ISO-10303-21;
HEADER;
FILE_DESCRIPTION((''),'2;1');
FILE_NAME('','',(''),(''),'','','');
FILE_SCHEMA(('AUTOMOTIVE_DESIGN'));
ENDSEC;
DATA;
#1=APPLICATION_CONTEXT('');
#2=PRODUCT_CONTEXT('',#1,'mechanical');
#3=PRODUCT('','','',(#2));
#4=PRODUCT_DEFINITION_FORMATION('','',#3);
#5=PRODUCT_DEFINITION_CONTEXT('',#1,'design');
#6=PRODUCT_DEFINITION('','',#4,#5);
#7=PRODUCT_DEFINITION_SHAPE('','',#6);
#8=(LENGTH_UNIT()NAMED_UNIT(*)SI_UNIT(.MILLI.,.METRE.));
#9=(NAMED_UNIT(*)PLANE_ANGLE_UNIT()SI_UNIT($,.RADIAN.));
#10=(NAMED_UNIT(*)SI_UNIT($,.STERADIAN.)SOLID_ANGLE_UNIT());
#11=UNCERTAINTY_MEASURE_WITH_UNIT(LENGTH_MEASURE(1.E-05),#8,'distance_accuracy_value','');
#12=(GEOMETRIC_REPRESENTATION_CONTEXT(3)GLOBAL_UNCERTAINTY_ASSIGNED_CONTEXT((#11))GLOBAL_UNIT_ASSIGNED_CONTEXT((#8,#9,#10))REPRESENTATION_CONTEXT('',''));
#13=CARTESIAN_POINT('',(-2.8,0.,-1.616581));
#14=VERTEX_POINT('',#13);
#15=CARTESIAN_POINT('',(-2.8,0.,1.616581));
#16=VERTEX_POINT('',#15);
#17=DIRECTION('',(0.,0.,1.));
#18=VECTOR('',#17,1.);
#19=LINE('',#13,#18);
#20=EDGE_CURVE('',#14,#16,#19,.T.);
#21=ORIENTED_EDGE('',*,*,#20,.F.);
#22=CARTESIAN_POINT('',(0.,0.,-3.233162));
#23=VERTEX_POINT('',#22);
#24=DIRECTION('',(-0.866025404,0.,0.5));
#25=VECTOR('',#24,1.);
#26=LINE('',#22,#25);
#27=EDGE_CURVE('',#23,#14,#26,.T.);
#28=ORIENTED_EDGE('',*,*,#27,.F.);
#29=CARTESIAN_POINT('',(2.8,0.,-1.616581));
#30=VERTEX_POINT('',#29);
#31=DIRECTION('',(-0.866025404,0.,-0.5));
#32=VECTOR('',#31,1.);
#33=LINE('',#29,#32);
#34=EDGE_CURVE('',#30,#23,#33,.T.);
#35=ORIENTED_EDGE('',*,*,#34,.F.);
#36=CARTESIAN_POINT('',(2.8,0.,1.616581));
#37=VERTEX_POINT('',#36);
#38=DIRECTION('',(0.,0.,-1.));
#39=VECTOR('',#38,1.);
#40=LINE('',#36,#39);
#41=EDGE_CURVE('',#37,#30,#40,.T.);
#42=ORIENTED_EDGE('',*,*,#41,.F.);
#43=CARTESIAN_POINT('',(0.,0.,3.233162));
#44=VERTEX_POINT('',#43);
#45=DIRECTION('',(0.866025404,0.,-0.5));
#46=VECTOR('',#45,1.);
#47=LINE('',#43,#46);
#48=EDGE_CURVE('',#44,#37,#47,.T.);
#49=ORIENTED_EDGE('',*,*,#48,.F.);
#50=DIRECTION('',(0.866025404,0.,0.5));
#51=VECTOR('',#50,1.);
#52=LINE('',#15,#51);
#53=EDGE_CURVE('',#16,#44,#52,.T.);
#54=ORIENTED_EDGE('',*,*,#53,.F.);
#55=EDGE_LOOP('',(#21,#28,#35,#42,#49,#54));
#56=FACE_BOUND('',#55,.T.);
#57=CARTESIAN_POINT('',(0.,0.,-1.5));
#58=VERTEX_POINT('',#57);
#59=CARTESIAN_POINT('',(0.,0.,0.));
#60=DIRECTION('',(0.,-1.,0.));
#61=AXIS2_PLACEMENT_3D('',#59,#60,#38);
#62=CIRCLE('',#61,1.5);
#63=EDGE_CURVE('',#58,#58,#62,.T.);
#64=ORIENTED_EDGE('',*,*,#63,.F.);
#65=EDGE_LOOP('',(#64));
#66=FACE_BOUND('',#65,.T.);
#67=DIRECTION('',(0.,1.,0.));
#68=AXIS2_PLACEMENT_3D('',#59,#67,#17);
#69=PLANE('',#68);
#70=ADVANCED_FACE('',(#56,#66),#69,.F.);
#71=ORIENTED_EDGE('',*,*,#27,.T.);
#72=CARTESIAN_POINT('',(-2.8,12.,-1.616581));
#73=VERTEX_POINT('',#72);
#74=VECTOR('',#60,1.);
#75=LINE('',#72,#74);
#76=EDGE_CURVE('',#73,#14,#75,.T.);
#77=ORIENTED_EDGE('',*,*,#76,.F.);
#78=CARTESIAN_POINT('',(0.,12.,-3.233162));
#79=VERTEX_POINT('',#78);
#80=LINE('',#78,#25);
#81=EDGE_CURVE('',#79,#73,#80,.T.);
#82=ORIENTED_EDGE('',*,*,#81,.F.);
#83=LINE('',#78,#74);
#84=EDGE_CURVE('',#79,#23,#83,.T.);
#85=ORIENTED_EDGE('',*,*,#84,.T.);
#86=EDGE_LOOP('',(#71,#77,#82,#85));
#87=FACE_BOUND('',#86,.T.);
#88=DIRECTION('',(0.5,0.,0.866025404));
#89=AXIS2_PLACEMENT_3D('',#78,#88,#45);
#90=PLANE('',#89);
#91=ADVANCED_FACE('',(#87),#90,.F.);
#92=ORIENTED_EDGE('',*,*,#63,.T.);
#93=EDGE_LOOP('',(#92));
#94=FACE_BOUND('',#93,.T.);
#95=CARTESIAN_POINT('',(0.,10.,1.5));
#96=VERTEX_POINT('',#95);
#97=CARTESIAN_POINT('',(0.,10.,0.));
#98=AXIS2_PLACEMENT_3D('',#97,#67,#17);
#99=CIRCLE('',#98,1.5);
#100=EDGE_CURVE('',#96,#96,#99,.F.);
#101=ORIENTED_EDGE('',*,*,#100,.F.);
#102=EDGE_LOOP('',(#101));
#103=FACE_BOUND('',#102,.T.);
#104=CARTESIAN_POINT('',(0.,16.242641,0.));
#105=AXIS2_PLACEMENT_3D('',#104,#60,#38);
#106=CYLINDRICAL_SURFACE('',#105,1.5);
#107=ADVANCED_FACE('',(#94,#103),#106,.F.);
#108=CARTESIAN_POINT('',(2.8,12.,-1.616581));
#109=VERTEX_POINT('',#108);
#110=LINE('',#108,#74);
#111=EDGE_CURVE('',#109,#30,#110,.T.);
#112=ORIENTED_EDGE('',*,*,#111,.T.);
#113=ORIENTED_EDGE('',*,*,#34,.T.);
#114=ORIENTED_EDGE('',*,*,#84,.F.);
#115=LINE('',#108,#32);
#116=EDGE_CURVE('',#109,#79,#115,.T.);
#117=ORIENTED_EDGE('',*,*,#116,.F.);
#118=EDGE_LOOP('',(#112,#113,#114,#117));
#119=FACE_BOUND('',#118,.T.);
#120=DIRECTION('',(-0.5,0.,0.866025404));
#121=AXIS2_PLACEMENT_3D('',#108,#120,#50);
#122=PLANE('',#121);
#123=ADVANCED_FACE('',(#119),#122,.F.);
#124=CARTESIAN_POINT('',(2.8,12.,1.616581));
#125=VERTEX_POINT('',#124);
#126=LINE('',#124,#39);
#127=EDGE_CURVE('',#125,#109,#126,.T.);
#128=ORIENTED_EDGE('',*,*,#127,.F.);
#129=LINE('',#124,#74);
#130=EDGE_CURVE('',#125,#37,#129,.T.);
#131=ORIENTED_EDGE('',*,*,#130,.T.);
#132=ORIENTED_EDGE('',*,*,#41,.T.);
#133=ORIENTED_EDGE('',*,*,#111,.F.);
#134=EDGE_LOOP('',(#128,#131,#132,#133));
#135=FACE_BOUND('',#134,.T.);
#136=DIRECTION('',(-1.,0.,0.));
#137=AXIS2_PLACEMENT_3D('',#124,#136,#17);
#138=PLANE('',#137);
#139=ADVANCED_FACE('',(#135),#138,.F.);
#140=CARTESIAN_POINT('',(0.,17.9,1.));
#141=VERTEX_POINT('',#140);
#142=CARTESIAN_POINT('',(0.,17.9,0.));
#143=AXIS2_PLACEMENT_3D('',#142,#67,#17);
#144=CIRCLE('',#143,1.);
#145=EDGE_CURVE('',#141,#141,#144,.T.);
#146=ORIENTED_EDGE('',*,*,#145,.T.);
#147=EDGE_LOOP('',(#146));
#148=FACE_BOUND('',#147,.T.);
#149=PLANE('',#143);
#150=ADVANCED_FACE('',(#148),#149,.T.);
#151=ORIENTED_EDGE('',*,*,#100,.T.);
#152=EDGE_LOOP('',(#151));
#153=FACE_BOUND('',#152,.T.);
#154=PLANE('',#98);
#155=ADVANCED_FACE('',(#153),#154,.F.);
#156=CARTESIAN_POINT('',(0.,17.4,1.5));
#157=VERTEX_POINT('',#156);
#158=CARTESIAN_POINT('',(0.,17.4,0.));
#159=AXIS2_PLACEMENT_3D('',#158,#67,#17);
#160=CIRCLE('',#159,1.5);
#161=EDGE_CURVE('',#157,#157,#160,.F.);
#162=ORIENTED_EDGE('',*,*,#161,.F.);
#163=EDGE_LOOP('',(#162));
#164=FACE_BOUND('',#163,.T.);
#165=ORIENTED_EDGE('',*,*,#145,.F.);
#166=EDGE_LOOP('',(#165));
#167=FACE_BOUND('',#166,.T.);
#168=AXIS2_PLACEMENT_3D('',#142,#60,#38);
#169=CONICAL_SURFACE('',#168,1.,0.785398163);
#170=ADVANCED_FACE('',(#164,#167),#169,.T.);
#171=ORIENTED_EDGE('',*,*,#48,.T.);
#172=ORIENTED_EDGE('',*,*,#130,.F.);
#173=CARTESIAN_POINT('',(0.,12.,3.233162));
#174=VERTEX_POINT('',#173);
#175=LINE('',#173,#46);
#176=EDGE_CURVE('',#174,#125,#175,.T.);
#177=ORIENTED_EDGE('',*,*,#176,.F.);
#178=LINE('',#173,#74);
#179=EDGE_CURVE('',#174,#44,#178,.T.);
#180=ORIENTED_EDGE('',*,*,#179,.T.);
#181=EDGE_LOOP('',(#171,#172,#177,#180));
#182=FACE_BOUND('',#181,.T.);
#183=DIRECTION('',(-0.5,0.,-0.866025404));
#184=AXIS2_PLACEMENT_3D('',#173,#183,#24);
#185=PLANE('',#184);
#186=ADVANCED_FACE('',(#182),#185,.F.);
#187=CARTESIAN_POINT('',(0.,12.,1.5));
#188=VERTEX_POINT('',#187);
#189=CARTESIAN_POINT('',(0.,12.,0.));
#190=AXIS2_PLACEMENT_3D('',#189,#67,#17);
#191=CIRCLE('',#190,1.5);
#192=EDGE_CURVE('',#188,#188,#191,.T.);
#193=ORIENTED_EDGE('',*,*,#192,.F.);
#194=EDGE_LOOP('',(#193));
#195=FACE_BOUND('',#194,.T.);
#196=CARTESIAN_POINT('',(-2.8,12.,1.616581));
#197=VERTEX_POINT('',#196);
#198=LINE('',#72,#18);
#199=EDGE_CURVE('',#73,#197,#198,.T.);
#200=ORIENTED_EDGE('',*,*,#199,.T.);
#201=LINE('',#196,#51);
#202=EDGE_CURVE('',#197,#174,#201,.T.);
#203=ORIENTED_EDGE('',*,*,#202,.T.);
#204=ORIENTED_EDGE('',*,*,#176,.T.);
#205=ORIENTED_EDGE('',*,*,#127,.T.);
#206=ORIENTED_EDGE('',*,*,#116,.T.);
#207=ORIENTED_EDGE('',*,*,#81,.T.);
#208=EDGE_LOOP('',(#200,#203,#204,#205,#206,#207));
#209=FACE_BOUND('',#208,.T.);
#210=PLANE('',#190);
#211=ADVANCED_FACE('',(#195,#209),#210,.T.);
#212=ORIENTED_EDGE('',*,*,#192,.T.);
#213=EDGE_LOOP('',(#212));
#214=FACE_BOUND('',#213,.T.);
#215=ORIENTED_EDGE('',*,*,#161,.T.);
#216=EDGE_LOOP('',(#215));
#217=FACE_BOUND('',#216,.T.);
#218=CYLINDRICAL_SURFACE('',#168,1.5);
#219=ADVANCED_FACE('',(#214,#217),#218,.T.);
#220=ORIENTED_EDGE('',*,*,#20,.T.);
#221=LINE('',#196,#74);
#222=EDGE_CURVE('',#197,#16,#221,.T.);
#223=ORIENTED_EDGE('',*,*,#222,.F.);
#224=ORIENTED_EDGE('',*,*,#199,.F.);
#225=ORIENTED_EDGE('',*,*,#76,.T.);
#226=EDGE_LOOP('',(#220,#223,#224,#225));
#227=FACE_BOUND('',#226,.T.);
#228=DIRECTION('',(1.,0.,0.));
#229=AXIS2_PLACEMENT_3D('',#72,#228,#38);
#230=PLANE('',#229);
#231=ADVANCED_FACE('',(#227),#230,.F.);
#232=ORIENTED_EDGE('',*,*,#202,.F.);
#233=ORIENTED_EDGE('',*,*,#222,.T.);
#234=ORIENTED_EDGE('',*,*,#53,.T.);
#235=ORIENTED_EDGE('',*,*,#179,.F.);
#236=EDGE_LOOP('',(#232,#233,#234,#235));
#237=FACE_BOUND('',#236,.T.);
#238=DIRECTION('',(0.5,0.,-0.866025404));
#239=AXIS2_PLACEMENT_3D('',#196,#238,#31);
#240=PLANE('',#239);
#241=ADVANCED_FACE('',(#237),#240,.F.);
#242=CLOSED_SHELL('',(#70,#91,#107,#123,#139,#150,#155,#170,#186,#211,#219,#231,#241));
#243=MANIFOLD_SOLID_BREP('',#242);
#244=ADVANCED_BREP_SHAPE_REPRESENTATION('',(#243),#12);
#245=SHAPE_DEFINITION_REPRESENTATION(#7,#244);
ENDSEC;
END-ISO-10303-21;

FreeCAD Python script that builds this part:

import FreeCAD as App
import Part
import Sketcher

V = App.Vector
Q = App.Units.Quantity


def edges_at(feature, points):
    """Names of the edges that pass closest to the given points."""
    edges = feature.Shape.Edges
    near = lambda p: min(range(len(edges)), key=lambda i: edges[i].distToShape(Part.Vertex(*p))[0])
    return sorted({f"Edge{near(p) + 1}" for p in points})


def add_polygon(sketch, points):
    """Adds a closed chain of lines whose ends are joined by coincident constraints."""
    first, n = sketch.GeometryCount, len(points)
    for a, b in zip(points, points[1:] + points[:1]):
        sketch.addGeometry(Part.LineSegment(App.Vector(*a, 0), App.Vector(*b, 0)), False)
    for i in range(n):
        sketch.addConstraint(Sketcher.Constraint("Coincident", first + i, 2, first + (i + 1) % n, 1))

doc = App.newDocument("Part")
body = doc.addObject("PartDesign::Body", "Body")

sketch1 = body.newObject("Sketcher::SketchObject", "Sketch")
sketch1.AttachmentSupport = (doc.getObject("XZ_Plane"), [""])
sketch1.MapMode = "FlatFace"
add_polygon(sketch1, [(0, 3.2), (2.8, 1.6), (2.8, -1.6), (0, -3.2), (-2.8, -1.6), (-2.8, 1.6)])
sketch1.addConstraint([
    Sketcher.Constraint("Vertical", 1),
    Sketcher.Constraint("Vertical", 4),
    Sketcher.Constraint("Symmetric", 0, 2, 3, 2, -1, 1),
    Sketcher.Constraint("Symmetric", 2, 2, 5, 2, -1, 1),
    Sketcher.Constraint("PointOnObject", 2, 2, -2),
    Sketcher.Constraint("Parallel", 2, 5),
    Sketcher.Constraint("Horizontal", 1, 2, 3, 2),
    Sketcher.Constraint("Angle", 0, Q("-30 deg")),
    Sketcher.Constraint("DistanceX", -1, 1, 0, 2, 2.8),
    Sketcher.Constraint("DistanceY", 1, 2, 1, 1, 3.233162),
])
pad1 = body.newObject("PartDesign::Pad", "Pad")
pad1.Profile = sketch1
pad1.Length = 12
pad1.Reversed = True

sketch2 = body.newObject("Sketcher::SketchObject", "Sketch001")
sketch2.AttachmentSupport = (doc.getObject("XZ_Plane"), [""])
sketch2.MapMode = "FlatFace"
sketch2.AttachmentOffset = App.Placement(V(0, 0, -12), App.Rotation())
sketch2.addGeometry(Part.Circle(V(0, 0, 0), V(0, 0, 1), 1.5), False)
sketch2.addConstraint([
    Sketcher.Constraint("Coincident", 0, 3, -1, 1),
    Sketcher.Constraint("Diameter", 0, 3.0),
])
pad2 = body.newObject("PartDesign::Pad", "Pad001")
pad2.Profile = sketch2
pad2.Length = 5.9
pad2.Reversed = True

sketch3 = body.newObject("Sketcher::SketchObject", "Sketch002")
sketch3.AttachmentSupport = (doc.getObject("XZ_Plane"), [""])
sketch3.MapMode = "FlatFace"
sketch3.addGeometry(Part.Circle(V(0, 0, 0), V(0, 0, 1), 1.5), False)
sketch3.addConstraint([
    Sketcher.Constraint("Coincident", 0, 3, -1, 1),
    Sketcher.Constraint("Diameter", 0, 3.0),
])
pocket1 = body.newObject("PartDesign::Pocket", "Pocket")
pocket1.Profile = sketch3
pocket1.Length = 10
doc.recompute()

chamfer = body.newObject("PartDesign::Chamfer", "Chamfer")
chamfer.Base = (pocket1, edges_at(pocket1, [(-1.5, 17.9, 0)]))
chamfer.Size = 0.5

doc.recompute()
